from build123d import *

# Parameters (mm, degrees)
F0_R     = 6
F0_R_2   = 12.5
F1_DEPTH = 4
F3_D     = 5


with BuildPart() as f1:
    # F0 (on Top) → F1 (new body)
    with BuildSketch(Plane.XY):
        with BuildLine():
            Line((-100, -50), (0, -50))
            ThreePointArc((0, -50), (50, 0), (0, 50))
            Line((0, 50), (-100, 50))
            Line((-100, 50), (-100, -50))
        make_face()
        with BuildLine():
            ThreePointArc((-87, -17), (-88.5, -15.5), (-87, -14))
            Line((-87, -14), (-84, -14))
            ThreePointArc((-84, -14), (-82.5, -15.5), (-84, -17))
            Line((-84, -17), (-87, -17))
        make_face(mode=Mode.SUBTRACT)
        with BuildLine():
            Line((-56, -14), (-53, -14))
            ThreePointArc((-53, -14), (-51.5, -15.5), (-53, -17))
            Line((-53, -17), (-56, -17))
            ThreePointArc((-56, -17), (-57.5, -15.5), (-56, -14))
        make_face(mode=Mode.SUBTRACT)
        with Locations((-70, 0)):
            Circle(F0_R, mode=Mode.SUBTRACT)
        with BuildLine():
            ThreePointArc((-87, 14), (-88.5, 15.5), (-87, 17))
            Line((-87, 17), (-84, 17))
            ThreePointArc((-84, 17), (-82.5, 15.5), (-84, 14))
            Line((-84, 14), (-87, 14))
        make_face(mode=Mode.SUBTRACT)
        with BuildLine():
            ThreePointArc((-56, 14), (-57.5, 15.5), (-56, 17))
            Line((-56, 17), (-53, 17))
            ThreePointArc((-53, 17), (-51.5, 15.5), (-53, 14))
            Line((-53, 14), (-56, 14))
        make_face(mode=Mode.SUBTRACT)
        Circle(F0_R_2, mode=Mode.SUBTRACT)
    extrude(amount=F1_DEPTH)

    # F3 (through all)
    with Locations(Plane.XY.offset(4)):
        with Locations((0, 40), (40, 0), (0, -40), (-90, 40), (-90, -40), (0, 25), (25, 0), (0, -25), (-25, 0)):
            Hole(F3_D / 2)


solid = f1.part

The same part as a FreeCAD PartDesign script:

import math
import FreeCAD as App
import Part
import Sketcher
from FreeCAD import Vector

doc = App.newDocument("Part")
params = doc.addObject("Spreadsheet::Sheet", "Params")
for row, (alias, value) in enumerate([
    ("sketch1_diameter", "12 mm"),
    ("sketch1_diameter2", "25 mm"),
    ("sketch1_radius", "50 mm"),
    ("sketch1_radius2", "1.5 mm"),
    ("sketch1_width", "3 mm"),
    ("pad1_length", "4 mm"),
    ("sketch2_diameter", "5 mm"),
    ("hole_diameter", "5 mm"),
], start=1):
    params.set(f"A{row}", alias)
    params.set(f"B{row}", "=" + value)
    params.setAlias(f"B{row}", alias)

body = doc.addObject("PartDesign::Body", "Body")

# Sketch on XY plane
sketch1 = body.newObject("Sketcher::SketchObject", "Sketch")
sketch1.AttachmentSupport = (doc.getObject("XY_Plane"), [""])
sketch1.MapMode = "FlatFace"
sketch1.addGeometry([
    Part.LineSegment(Vector(-100, -50, 0), Vector(0, -50, 0)),  # 0
    Part.ArcOfCircle(Part.Circle(Vector(0, 0, 0), Vector(0, 0, 1), 50), math.radians(-90), math.radians(90)),  # 1
    Part.LineSegment(Vector(0, 50, 0), Vector(-100, 50, 0)),  # 2
    Part.LineSegment(Vector(-100, 50, 0), Vector(-100, -50, 0)),  # 3
    Part.LineSegment(Vector(-84, -17, 0), Vector(-87, -17, 0)),  # 4
    Part.ArcOfCircle(Part.Circle(Vector(-87, -15.5, 0), Vector(0, 0, 1), 1.5), math.radians(90), math.radians(270)),  # 5
    Part.LineSegment(Vector(-87, -14, 0), Vector(-84, -14, 0)),  # 6
    Part.ArcOfCircle(Part.Circle(Vector(-84, -15.5, 0), Vector(0, 0, 1), 1.5), math.radians(-90), math.radians(90)),  # 7
    Part.ArcOfCircle(Part.Circle(Vector(-56, -15.5, 0), Vector(0, 0, 1), 1.5), math.radians(90), math.radians(270)),  # 8
    Part.LineSegment(Vector(-56, -14, 0), Vector(-53, -14, 0)),  # 9
    Part.ArcOfCircle(Part.Circle(Vector(-53, -15.5, 0), Vector(0, 0, 1), 1.5), math.radians(-90), math.radians(90)),  # 10
    Part.LineSegment(Vector(-53, -17, 0), Vector(-56, -17, 0)),  # 11
    Part.Circle(Vector(-70, 0, 0), Vector(0, 0, 1), 6),  # 12
    Part.LineSegment(Vector(-84, 14, 0), Vector(-87, 14, 0)),  # 13
    Part.ArcOfCircle(Part.Circle(Vector(-87, 15.5, 0), Vector(0, 0, 1), 1.5), math.radians(90), math.radians(270)),  # 14
    Part.LineSegment(Vector(-87, 17, 0), Vector(-84, 17, 0)),  # 15
    Part.ArcOfCircle(Part.Circle(Vector(-84, 15.5, 0), Vector(0, 0, 1), 1.5), math.radians(-90), math.radians(90)),  # 16
    Part.LineSegment(Vector(-53, 14, 0), Vector(-56, 14, 0)),  # 17
    Part.ArcOfCircle(Part.Circle(Vector(-56, 15.5, 0), Vector(0, 0, 1), 1.5), math.radians(90), math.radians(270)),  # 18
    Part.LineSegment(Vector(-56, 17, 0), Vector(-53, 17, 0)),  # 19
    Part.ArcOfCircle(Part.Circle(Vector(-53, 15.5, 0), Vector(0, 0, 1), 1.5), math.radians(-90), math.radians(90)),  # 20
    Part.Circle(Vector(0, 0, 0), Vector(0, 0, 1), 12.5),  # 21
], False)
sketch1.addConstraint([
    Sketcher.Constraint("Tangent", 0, 2, 1, 1),
    Sketcher.Constraint("Tangent", 1, 2, 2, 1),
    Sketcher.Constraint("Coincident", 2, 2, 3, 1),
    Sketcher.Constraint("Coincident", 3, 2, 0, 1),
    Sketcher.Constraint("Tangent", 4, 2, 5, 2),
    Sketcher.Constraint("Tangent", 5, 1, 6, 1),
    Sketcher.Constraint("Tangent", 6, 2, 7, 2),
    Sketcher.Constraint("Tangent", 7, 1, 4, 1),
    Sketcher.Constraint("Tangent", 8, 1, 9, 1),
    Sketcher.Constraint("Tangent", 9, 2, 10, 2),
    Sketcher.Constraint("Tangent", 10, 1, 11, 1),
    Sketcher.Constraint("Tangent", 11, 2, 8, 2),
    Sketcher.Constraint("Tangent", 13, 2, 14, 2),
    Sketcher.Constraint("Tangent", 14, 1, 15, 1),
    Sketcher.Constraint("Tangent", 15, 2, 16, 2),
    Sketcher.Constraint("Tangent", 16, 1, 13, 1),
    Sketcher.Constraint("Tangent", 17, 2, 18, 2),
    Sketcher.Constraint("Tangent", 18, 1, 19, 1),
    Sketcher.Constraint("Tangent", 19, 2, 20, 2),
    Sketcher.Constraint("Tangent", 20, 1, 17, 1),
    Sketcher.Constraint("Horizontal", 0),
    Sketcher.Constraint("Horizontal", 2),
    Sketcher.Constraint("Vertical", 3),
    Sketcher.Constraint("Horizontal", 4),
    Sketcher.Constraint("Horizontal", 6),
    Sketcher.Constraint("Horizontal", 9),
    Sketcher.Constraint("Horizontal", 11),
    Sketcher.Constraint("Horizontal", 13),
    Sketcher.Constraint("Horizontal", 15),
    Sketcher.Constraint("Horizontal", 17),
    Sketcher.Constraint("Horizontal", 19),
    Sketcher.Constraint("Coincident", 1, 3, -1, 1),
    Sketcher.Constraint("Coincident", 21, 3, -1, 1),
    Sketcher.Constraint("Equal", 7, 8),
    Sketcher.Constraint("Equal", 10, 14),
    Sketcher.Constraint("Equal", 16, 18),
    Sketcher.Constraint("Symmetric", 5, 3, 14, 3, -1),
    Sketcher.Constraint("Symmetric", 8, 3, 18, 3, -1),
    Sketcher.Constraint("PointOnObject", 12, 3, -1),
    Sketcher.Constraint("Horizontal", 7, 3, 8, 3),
    Sketcher.Constraint("Vertical", 7, 3, 16, 3),
    Sketcher.Constraint("Vertical", 10, 3, 20, 3),
    Sketcher.Constraint("Equal", 6, 9),
    Sketcher.Constraint("Equal", 2, 3),
    Sketcher.Constraint("Diameter", 12, 12.0),
    Sketcher.Constraint("Diameter", 21, 25.0),
    Sketcher.Constraint("Radius", 1, 50.0),
    Sketcher.Constraint("Radius", 5, 1.5),
    Sketcher.Constraint("DistanceX", 4, 2, 4, 1, 3.0),
    Sketcher.Constraint("DistanceX", 5, 3, -1, 1, 87.0),
    Sketcher.Constraint("DistanceX", 8, 3, -1, 1, 56.0),
    Sketcher.Constraint("DistanceX", 12, 3, -1, 1, 70.0),
    Sketcher.Constraint("DistanceY", 4, 2, -1, 1, 17.0),
])
sketch1.setExpression("Constraints[44]", "Params.sketch1_diameter")
sketch1.setExpression("Constraints[45]", "Params.sketch1_diameter2")
sketch1.setExpression("Constraints[46]", "Params.sketch1_radius")
sketch1.setExpression("Constraints[47]", "Params.sketch1_radius2")
sketch1.setExpression("Constraints[48]", "Params.sketch1_width")
pad1 = body.newObject("PartDesign::Pad", "Pad")
pad1.Profile = sketch1
pad1.setExpression("Length", "Params.pad1_length")

# Sketch on XY plane
sketch2 = body.newObject("Sketcher::SketchObject", "Sketch001")
sketch2.AttachmentSupport = (doc.getObject("XY_Plane"), [""])
sketch2.MapMode = "FlatFace"
sketch2.AttachmentOffset = App.Placement(Vector(0, 0, 4), App.Rotation())
sketch2.addGeometry([
    Part.Circle(Vector(0, 40, 0), Vector(0, 0, 1), 2.5),  # 0
    Part.Circle(Vector(40, 0, 0), Vector(0, 0, 1), 2.5),  # 1
    Part.Circle(Vector(0, -40, 0), Vector(0, 0, 1), 2.5),  # 2
    Part.Circle(Vector(-90, 40, 0), Vector(0, 0, 1), 2.5),  # 3
    Part.Circle(Vector(-90, -40, 0), Vector(0, 0, 1), 2.5),  # 4
    Part.Circle(Vector(0, 25, 0), Vector(0, 0, 1), 2.5),  # 5
    Part.Circle(Vector(25, 0, 0), Vector(0, 0, 1), 2.5),  # 6
    Part.Circle(Vector(0, -25, 0), Vector(0, 0, 1), 2.5),  # 7
    Part.Circle(Vector(-25, 0, 0), Vector(0, 0, 1), 2.5),  # 8
], False)
sketch2.addConstraint([
    Sketcher.Constraint("Equal", 0, 1),
    Sketcher.Constraint("Equal", 1, 2),
    Sketcher.Constraint("Equal", 2, 3),
    Sketcher.Constraint("Equal", 3, 4),
    Sketcher.Constraint("Equal", 4, 5),
    Sketcher.Constraint("Equal", 5, 6),
    Sketcher.Constraint("Equal", 6, 7),
    Sketcher.Constraint("Equal", 7, 8),
    Sketcher.Constraint("Symmetric", 0, 3, 2, 3, -1, 1),
    Sketcher.Constraint("Symmetric", 5, 3, 7, 3, -1, 1),
    Sketcher.Constraint("Symmetric", 6, 3, 8, 3, -1, 1),
    Sketcher.Constraint("Symmetric", 3, 3, 4, 3, -1),
    Sketcher.Constraint("PointOnObject", 0, 3, -2),
    Sketcher.Constraint("PointOnObject", 1, 3, -1),
    Sketcher.Constraint("PointOnObject", 5, 3, -2),
    Sketcher.Constraint("PointOnObject", 6, 3, -1),
    Sketcher.Constraint("Horizontal", 0, 3, 3, 3),
    Sketcher.Constraint("Diameter", 0, 5.0),
    Sketcher.Constraint("DistanceY", -1, 1, 0, 3, 40.0),
    Sketcher.Constraint("DistanceX", -1, 1, 1, 3, 40.0),
    Sketcher.Constraint("DistanceX", 3, 3, -1, 1, 90.0),
    Sketcher.Constraint("DistanceY", -1, 1, 5, 3, 25.0),
    Sketcher.Constraint("DistanceX", -1, 1, 6, 3, 25.0),
])
sketch2.setExpression("Constraints[17]", "Params.sketch2_diameter")
doc.recompute()
hole = body.newObject("PartDesign::Hole", "Hole")
hole.Profile = sketch2
hole.ThreadType = "None"
hole.setExpression("Diameter", "Params.hole_diameter")
hole.DepthType = "ThroughAll"

doc.recompute()
